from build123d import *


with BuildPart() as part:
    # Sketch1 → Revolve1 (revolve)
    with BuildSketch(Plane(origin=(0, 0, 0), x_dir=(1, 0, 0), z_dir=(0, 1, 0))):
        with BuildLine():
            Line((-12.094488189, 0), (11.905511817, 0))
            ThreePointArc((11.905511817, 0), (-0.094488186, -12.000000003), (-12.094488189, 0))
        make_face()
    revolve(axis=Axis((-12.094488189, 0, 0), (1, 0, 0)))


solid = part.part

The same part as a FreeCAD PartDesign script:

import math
import FreeCAD as App
import Part
import Sketcher

V = App.Vector

doc = App.newDocument("Part")
body = doc.addObject("PartDesign::Body", "Body")

# Sketch on XZ plane
sketch1 = doc.addObject("Sketcher::SketchObject", "Sketch")
body.addObject(sketch1)
sketch1.AttachmentSupport = (doc.XZ_Plane, [""])
sketch1.MapMode = "FlatFace"
sketch1.addGeometry([
    Part.LineSegment(V(12, 0, 0), V(-12, 0, 0)),
    Part.ArcOfCircle(Part.Circle(V(0, 0, 0), V(0, 0, 1), 12), math.radians(0), math.radians(180)),
], False)
sketch1.addConstraint([
    Sketcher.Constraint("Coincident", 0, 1, 1, 1),
    Sketcher.Constraint("Coincident", 1, 2, 0, 2),
    Sketcher.Constraint("Horizontal", 0),
    Sketcher.Constraint("PointOnObject", 1, 3, -1),
    Sketcher.Constraint("PointOnObject", 0, 1, -1),
    Sketcher.Constraint("Radius", 1, 12.0),
    Sketcher.Constraint("DistanceX", 1, 3, -1, 1, 0.094488),
])
revolution = doc.addObject("PartDesign::Revolution", "Revolution")
body.addObject(revolution)
revolution.Profile = sketch1
revolution.ReferenceAxis = (sketch1, ["H_Axis"])
revolution.Angle = 360

doc.recompute()
